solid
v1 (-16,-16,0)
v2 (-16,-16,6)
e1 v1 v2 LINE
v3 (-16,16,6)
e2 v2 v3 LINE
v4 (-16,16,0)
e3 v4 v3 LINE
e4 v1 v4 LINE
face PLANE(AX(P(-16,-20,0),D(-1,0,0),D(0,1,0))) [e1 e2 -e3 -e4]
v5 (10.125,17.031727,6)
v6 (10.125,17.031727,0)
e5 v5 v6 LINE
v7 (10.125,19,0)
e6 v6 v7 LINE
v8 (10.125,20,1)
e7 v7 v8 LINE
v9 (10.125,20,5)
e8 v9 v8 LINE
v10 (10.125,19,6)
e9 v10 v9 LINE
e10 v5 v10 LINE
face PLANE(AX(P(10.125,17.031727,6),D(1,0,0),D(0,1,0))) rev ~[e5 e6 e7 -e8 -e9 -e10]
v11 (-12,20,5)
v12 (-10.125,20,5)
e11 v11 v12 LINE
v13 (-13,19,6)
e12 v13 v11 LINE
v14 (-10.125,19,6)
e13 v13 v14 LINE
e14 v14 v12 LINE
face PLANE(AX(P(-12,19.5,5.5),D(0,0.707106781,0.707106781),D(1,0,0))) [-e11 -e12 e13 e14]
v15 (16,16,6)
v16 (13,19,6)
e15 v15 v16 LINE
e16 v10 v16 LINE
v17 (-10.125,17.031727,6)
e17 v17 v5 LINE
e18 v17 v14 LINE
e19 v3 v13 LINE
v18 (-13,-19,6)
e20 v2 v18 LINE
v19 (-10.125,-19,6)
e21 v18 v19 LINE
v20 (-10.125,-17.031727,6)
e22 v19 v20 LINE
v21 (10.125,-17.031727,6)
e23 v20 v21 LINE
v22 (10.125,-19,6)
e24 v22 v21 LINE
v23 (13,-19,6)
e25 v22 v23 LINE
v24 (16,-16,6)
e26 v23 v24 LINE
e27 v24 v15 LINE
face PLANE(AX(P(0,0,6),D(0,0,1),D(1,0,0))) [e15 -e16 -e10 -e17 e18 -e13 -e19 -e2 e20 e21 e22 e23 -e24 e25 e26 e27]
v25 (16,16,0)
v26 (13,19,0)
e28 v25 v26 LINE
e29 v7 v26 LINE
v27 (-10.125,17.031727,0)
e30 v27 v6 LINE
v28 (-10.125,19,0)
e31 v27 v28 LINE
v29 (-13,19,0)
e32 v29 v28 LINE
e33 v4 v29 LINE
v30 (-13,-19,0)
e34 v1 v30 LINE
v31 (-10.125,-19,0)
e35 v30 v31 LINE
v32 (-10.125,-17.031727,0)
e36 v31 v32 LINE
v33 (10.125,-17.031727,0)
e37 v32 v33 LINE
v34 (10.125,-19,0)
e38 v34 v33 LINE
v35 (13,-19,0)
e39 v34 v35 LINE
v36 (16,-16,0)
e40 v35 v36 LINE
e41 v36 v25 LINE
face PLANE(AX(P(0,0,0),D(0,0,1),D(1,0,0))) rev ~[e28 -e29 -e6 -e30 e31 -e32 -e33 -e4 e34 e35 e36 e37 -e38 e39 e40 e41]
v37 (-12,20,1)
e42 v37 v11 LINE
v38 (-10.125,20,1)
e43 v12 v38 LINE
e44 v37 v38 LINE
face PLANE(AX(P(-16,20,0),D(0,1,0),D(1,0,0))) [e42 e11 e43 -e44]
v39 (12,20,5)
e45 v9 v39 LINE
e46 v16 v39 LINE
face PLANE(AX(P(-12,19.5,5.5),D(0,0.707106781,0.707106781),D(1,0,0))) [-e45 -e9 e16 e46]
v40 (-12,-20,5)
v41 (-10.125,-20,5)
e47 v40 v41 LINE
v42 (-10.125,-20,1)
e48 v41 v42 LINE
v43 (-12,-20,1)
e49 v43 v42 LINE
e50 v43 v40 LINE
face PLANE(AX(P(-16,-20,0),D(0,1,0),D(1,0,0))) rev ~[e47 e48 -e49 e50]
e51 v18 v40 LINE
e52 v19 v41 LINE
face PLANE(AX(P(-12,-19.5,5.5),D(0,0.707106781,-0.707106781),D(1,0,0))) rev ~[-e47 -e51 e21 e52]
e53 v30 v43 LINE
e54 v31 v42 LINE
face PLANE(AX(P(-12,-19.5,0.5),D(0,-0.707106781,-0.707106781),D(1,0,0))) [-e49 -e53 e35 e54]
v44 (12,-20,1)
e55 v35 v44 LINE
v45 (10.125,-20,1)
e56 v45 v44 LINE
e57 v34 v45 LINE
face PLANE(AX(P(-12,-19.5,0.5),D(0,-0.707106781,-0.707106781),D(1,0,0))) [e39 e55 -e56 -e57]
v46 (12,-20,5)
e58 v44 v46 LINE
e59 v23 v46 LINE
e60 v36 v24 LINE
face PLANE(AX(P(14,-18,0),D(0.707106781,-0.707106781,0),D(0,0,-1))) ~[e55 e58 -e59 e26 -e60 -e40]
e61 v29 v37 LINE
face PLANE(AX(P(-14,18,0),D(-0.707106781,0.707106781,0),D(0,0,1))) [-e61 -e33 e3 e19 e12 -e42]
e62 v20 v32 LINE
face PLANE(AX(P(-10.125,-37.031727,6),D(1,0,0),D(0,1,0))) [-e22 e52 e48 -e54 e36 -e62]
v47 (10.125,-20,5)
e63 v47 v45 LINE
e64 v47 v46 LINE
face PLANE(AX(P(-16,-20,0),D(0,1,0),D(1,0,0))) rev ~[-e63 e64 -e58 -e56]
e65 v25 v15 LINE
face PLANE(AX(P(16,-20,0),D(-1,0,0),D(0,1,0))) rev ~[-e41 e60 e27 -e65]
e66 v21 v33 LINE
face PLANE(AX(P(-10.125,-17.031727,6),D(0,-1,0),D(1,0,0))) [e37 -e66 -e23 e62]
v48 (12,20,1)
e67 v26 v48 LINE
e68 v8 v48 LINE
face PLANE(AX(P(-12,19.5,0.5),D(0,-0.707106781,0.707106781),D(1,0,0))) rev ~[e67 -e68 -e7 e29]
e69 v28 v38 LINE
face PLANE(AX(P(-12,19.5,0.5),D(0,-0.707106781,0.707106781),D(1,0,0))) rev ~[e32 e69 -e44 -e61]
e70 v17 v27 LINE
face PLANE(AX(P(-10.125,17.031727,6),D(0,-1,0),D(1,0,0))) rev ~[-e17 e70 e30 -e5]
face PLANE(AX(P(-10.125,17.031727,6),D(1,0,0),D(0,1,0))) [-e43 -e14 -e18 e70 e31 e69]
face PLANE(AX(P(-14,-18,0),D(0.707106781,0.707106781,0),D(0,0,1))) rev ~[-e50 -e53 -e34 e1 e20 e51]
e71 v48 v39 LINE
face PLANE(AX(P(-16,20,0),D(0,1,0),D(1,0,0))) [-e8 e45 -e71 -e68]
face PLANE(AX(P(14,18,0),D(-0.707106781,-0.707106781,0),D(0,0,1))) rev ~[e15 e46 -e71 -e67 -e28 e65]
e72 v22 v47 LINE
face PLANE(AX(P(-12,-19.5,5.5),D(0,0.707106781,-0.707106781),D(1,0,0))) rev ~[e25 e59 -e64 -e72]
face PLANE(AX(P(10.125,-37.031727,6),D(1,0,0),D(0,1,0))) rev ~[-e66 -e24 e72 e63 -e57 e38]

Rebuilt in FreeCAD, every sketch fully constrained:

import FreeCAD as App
import Part
import Sketcher

V = App.Vector
Q = App.Units.Quantity


def edges_at(feature, points):
    """Names of the edges that pass closest to the given points."""
    edges = feature.Shape.Edges
    near = lambda p: min(range(len(edges)), key=lambda i: edges[i].distToShape(Part.Vertex(*p))[0])
    return sorted({f"Edge{near(p) + 1}" for p in points})


def add_polygon(sketch, points):
    """Adds a closed chain of lines whose ends are joined by coincident constraints."""
    first, n = sketch.GeometryCount, len(points)
    for a, b in zip(points, points[1:] + points[:1]):
        sketch.addGeometry(Part.LineSegment(App.Vector(*a, 0), App.Vector(*b, 0)), False)
    for i in range(n):
        sketch.addConstraint(Sketcher.Constraint("Coincident", first + i, 2, first + (i + 1) % n, 1))

doc = App.newDocument("Part")
body = doc.addObject("PartDesign::Body", "Body")

# Sketch on XY plane
sketch1 = body.newObject("Sketcher::SketchObject", "Sketch")
sketch1.AttachmentSupport = (doc.getObject("XY_Plane"), [""])
sketch1.MapMode = "FlatFace"
add_polygon(sketch1, [(-16, 20), (-16, -20), (16, -20), (16, 20)])  # lines 0-3
sketch1.addConstraint([
    Sketcher.Constraint("Vertical", 0),
    Sketcher.Constraint("Horizontal", 1),
    Sketcher.Constraint("Vertical", 2),
    Sketcher.Constraint("Horizontal", 3),
    Sketcher.Constraint("Symmetric", 0, 2, 2, 2, -1, 1),
    Sketcher.Constraint("DistanceX", 1, 1, 1, 2, Q("32 mm")),
    Sketcher.Constraint("DistanceY", 0, 2, 0, 1, Q("40 mm")),
])
pad1 = body.newObject("PartDesign::Pad", "Pad")
pad1.Profile = sketch1
pad1.Length = 6
doc.recompute()

chamfer = body.newObject("PartDesign::Chamfer", "Chamfer")
chamfer.Base = (pad1, edges_at(pad1, [
    (16, 20, 3),
    (16, -20, 3),
    (-16, 20, 3),
    (-16, -20, 3),
]))
chamfer.Size = 4
doc.recompute()

chamfer2 = body.newObject("PartDesign::Chamfer", "Chamfer001")
chamfer2.Base = (chamfer, edges_at(chamfer, [
    (0, -20, 0),
    (0, -20, 6),
    (0, 20, 0),
    (0, 20, 6),
]))
chamfer2.Size = 1

# Sketch on XY plane
sketch2 = body.newObject("Sketcher::SketchObject", "Sketch001")
sketch2.AttachmentSupport = (doc.getObject("XY_Plane"), [""])
sketch2.MapMode = "FlatFace"
sketch2.AttachmentOffset = App.Placement(V(0, 0, 6), App.Rotation())
add_polygon(sketch2, [(-10, -17), (-10, -37), (10, -37), (10, -17)])  # lines 0-3
add_polygon(sketch2, [(-10, 37), (-10, 17), (10, 17), (10, 37)])  # lines 4-7
sketch2.addConstraint([
    Sketcher.Constraint("Vertical", 0),
    Sketcher.Constraint("Horizontal", 1),
    Sketcher.Constraint("Vertical", 2),
    Sketcher.Constraint("Horizontal", 3),
    Sketcher.Constraint("Vertical", 4),
    Sketcher.Constraint("Horizontal", 5),
    Sketcher.Constraint("Vertical", 6),
    Sketcher.Constraint("Horizontal", 7),
    Sketcher.Constraint("Symmetric", 2, 2, 4, 2, -1, 1),
    Sketcher.Constraint("Symmetric", 0, 2, 6, 2, -1, 1),
    Sketcher.Constraint("Vertical", 3, 2, 4, 2),
    Sketcher.Constraint("DistanceY", 0, 2, 0, 1, Q("20 mm")),
    Sketcher.Constraint("DistanceX", 1, 1, 1, 2, Q("20.25 mm")),
    Sketcher.Constraint("DistanceY", 0, 2, -1, 1, Q("37.031727 mm")),
])
pocket1 = body.newObject("PartDesign::Pocket", "Pocket")
pocket1.Profile = sketch2
pocket1.Length = 10

doc.recompute()
